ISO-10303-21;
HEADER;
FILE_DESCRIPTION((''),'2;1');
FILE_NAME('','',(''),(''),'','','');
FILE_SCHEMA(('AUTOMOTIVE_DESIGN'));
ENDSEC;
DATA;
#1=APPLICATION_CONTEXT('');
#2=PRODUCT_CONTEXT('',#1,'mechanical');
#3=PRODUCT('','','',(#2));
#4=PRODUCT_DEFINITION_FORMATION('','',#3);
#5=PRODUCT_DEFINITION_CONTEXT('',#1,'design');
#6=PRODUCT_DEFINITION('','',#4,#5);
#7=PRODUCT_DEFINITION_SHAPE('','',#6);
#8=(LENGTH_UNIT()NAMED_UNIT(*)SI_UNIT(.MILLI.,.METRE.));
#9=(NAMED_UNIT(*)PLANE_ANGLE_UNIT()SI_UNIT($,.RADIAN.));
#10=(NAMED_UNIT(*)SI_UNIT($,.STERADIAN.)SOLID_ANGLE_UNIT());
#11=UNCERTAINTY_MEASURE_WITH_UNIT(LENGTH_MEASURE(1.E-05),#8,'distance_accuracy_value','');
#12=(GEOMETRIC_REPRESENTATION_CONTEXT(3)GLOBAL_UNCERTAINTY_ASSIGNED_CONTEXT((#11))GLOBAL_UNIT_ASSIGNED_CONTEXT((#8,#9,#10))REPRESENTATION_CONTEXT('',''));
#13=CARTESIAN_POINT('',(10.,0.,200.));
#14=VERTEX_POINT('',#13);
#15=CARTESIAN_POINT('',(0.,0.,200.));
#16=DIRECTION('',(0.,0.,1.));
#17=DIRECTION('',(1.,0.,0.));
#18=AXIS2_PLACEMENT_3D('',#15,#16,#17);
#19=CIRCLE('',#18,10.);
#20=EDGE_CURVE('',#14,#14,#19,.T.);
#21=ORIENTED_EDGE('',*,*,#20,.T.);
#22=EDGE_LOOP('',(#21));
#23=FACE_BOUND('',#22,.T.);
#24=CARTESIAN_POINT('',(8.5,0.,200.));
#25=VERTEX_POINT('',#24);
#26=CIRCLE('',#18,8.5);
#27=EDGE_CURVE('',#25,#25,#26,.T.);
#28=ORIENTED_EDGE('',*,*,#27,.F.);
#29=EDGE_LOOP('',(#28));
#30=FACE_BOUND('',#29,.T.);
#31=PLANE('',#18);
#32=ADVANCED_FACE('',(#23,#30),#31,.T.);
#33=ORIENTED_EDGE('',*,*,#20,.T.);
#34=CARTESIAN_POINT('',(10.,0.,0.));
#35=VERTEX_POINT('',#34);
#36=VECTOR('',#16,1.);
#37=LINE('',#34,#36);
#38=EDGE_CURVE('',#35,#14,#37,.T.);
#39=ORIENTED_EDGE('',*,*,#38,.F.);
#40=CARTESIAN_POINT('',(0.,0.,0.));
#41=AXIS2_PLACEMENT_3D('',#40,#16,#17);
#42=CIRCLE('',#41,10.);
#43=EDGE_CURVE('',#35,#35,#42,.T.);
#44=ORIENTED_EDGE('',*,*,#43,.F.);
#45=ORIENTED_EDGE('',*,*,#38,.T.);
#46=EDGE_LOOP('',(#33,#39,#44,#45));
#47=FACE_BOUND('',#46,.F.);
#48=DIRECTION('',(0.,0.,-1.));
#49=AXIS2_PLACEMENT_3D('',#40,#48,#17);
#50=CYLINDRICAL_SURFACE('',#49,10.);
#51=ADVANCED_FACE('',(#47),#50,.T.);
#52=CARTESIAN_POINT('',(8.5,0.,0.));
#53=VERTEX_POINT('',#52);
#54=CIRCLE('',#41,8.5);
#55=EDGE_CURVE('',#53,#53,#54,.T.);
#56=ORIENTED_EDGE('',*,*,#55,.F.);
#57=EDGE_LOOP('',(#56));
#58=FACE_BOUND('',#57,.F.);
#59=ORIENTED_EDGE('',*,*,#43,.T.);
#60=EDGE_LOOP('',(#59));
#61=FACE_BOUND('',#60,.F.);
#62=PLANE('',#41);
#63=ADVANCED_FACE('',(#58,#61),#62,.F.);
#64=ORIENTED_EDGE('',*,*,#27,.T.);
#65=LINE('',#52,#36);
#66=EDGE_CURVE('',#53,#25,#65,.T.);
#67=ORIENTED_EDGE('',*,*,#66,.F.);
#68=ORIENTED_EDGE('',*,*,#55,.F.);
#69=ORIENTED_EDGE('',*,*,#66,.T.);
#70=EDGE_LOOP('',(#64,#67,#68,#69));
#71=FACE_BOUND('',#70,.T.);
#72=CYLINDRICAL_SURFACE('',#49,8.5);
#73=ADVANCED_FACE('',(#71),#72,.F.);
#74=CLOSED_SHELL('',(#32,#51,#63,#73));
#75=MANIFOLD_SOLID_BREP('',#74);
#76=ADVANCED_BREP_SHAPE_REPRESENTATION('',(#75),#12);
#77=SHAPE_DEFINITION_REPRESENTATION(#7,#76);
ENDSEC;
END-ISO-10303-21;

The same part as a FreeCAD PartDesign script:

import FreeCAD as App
import Part
import Sketcher

doc = App.newDocument("Part")
body = doc.addObject("PartDesign::Body", "Body")

# Sketch on XY plane
sketch1 = body.newObject("Sketcher::SketchObject", "Sketch")
sketch1.AttachmentSupport = (doc.getObject("XY_Plane"), [""])
sketch1.MapMode = "FlatFace"
sketch1.addGeometry([
    Part.Circle(App.Vector(0, 0, 0), App.Vector(0, 0, 1), 10),
    Part.Circle(App.Vector(0, 0, 0), App.Vector(0, 0, 1), 8.5),
], False)
sketch1.addConstraint([
    Sketcher.Constraint("Coincident", 0, 3, -1, 1),
    Sketcher.Constraint("Coincident", 1, 3, -1, 1),
    Sketcher.Constraint("Diameter", 0, 20.0),
    Sketcher.Constraint("Diameter", 1, 17.0),
])
pad1 = body.newObject("PartDesign::Pad", "Pad")
pad1.Profile = sketch1
pad1.Length = 200

doc.recompute()
